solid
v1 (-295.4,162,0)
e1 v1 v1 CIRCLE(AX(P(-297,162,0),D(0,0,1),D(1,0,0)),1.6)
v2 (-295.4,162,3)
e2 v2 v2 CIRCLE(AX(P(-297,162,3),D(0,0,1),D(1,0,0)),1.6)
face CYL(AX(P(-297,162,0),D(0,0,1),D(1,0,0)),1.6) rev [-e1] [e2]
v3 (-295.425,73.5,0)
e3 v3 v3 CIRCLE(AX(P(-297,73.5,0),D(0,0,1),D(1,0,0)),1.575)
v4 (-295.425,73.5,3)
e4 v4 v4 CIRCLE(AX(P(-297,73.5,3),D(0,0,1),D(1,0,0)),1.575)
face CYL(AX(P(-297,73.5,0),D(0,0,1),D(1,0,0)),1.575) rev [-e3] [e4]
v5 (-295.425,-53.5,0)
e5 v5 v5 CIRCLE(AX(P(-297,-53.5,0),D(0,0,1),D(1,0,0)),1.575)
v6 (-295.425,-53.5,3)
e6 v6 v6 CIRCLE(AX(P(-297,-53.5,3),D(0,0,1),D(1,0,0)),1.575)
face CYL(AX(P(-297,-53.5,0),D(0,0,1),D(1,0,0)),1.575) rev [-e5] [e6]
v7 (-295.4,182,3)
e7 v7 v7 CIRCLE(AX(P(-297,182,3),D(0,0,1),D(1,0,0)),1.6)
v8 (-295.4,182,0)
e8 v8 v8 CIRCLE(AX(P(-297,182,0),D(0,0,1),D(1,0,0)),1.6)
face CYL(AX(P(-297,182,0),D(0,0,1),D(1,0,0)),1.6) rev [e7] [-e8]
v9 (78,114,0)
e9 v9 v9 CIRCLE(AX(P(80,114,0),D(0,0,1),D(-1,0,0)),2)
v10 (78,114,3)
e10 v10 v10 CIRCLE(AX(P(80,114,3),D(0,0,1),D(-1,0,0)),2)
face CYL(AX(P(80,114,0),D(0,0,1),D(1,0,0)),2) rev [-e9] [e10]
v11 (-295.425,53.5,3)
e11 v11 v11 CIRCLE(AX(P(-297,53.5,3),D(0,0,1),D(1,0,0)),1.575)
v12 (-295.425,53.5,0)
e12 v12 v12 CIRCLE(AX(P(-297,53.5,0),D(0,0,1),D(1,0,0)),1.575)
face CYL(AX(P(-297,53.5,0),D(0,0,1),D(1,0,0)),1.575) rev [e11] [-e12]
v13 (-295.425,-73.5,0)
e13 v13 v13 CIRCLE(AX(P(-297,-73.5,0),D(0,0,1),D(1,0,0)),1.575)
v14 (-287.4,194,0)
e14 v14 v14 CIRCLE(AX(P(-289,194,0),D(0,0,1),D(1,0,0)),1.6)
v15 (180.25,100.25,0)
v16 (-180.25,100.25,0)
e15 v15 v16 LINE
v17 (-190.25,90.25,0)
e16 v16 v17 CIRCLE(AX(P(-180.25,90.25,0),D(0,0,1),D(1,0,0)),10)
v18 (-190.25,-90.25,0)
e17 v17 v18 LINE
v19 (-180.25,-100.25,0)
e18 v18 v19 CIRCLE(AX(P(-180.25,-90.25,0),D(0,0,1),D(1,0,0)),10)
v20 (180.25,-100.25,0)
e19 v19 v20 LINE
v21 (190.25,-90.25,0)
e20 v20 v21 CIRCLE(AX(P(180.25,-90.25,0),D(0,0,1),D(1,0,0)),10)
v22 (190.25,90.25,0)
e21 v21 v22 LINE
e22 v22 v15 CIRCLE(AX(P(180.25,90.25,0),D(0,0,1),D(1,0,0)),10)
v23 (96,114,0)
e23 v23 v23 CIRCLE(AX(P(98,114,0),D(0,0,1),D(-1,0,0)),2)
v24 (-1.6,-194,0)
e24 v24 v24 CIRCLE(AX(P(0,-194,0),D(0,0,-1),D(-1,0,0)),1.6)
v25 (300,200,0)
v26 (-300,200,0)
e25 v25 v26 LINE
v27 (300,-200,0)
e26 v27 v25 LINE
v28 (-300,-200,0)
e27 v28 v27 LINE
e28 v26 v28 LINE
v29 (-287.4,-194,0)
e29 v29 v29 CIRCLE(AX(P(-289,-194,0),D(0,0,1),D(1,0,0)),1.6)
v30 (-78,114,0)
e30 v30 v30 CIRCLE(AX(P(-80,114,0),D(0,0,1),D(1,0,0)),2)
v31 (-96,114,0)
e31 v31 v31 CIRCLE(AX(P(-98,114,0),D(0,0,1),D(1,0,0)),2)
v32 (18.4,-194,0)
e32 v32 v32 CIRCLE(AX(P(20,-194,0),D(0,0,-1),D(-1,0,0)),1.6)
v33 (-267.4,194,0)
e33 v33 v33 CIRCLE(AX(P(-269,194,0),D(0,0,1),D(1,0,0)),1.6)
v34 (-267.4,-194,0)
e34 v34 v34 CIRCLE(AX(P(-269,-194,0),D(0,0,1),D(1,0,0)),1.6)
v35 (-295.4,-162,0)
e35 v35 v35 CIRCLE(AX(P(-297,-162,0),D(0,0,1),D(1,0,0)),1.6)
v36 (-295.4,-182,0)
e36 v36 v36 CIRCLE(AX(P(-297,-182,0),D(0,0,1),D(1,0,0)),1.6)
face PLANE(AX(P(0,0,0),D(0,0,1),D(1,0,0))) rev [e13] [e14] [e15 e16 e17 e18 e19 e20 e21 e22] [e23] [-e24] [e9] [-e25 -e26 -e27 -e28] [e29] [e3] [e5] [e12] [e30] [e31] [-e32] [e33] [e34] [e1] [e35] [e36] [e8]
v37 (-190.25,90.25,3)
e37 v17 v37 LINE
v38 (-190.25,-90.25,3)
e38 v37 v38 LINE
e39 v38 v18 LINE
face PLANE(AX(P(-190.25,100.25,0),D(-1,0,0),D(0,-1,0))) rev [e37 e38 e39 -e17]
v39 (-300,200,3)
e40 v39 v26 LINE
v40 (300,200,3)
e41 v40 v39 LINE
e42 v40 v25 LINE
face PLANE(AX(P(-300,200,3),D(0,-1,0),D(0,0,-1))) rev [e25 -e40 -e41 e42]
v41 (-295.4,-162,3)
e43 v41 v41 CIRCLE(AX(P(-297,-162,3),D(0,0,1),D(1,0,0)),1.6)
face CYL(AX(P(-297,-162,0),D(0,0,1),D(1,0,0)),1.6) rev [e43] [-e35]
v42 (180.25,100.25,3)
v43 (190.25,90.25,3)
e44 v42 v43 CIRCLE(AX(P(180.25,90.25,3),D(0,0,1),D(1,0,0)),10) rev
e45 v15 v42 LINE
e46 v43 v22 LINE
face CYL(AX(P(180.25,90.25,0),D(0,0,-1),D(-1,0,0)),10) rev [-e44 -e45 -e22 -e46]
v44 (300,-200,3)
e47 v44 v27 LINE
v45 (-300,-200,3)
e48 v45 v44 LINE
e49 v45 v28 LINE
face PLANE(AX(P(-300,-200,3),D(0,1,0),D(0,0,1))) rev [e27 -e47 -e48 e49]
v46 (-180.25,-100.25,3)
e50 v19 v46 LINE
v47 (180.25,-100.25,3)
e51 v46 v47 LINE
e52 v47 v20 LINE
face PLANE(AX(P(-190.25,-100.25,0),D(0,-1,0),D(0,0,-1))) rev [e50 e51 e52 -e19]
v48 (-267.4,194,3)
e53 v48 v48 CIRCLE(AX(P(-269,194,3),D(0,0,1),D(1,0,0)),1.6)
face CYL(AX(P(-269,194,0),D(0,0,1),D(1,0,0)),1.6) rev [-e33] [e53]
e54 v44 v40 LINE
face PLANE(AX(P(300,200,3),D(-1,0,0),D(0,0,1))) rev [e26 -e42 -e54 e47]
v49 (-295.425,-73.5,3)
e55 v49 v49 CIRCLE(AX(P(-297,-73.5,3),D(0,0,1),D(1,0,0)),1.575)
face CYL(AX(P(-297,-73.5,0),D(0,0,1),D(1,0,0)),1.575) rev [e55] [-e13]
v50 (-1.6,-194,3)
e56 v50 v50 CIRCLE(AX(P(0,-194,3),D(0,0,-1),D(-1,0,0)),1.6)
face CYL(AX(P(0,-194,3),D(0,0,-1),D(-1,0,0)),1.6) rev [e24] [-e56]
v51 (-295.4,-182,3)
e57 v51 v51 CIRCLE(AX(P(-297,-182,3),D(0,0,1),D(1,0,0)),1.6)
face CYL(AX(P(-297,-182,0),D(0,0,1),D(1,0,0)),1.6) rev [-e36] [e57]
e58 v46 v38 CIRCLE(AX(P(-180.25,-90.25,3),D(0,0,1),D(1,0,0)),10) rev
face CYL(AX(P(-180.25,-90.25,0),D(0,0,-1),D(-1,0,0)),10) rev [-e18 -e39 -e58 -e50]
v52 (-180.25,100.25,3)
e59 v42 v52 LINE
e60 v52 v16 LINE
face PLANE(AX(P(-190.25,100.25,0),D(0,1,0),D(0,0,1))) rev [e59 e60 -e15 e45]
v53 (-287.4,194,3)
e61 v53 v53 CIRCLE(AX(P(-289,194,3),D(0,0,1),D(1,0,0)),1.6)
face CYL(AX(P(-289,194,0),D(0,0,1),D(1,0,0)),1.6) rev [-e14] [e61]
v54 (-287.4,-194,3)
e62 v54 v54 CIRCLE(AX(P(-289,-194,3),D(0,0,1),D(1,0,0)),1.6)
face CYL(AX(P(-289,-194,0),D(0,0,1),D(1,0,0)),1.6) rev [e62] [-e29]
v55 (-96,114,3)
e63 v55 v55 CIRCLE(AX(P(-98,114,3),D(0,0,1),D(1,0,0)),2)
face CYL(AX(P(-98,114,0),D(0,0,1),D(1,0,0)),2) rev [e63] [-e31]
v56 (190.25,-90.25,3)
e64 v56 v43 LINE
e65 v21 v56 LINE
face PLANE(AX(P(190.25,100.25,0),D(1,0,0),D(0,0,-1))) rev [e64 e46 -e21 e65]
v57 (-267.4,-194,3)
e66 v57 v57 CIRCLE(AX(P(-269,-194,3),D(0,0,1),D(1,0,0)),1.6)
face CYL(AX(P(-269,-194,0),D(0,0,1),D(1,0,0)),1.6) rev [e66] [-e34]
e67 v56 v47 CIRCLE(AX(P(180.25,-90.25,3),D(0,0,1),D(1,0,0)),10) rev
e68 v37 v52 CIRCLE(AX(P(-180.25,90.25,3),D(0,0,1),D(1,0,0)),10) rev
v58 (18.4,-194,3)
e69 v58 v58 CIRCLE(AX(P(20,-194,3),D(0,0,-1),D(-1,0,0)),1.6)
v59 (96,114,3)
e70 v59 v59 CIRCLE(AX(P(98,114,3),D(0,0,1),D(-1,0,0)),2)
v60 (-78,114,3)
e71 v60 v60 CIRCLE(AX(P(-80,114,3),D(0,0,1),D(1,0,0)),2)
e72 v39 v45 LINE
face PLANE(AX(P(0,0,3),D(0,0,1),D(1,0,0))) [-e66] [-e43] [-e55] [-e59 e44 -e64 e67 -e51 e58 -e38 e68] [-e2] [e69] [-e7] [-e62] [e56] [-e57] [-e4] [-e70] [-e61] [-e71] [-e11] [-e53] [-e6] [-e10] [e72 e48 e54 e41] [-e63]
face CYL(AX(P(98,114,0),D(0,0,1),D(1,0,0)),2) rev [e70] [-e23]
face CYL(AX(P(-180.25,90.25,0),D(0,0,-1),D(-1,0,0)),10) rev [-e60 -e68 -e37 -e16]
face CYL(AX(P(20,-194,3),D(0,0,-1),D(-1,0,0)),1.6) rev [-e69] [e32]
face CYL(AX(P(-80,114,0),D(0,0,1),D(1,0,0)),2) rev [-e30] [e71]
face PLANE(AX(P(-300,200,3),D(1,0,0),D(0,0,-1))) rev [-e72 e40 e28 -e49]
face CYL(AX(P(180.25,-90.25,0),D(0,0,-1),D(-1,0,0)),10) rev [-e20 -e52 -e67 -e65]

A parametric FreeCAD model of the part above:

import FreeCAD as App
import Part
import Sketcher
from FreeCAD import Vector
Q = App.Units.Quantity


def edges_at(feature, points):
    """Names of the edges that pass closest to the given points."""
    edges = feature.Shape.Edges
    near = lambda p: min(range(len(edges)), key=lambda i: edges[i].distToShape(Part.Vertex(*p))[0])
    return sorted({f"Edge{near(p) + 1}" for p in points})

doc = App.newDocument("Part")
body = doc.addObject("PartDesign::Body", "Body")

sketch1 = body.newObject("Sketcher::SketchObject", "Sketch")
sketch1.AttachmentSupport = (doc.getObject("XY_Plane"), [""])
sketch1.MapMode = "FlatFace"
sketch1.addGeometry([
    Part.LineSegment(Vector(-300, 200, 0), Vector(-300, -200, 0)),
    Part.LineSegment(Vector(-300, -200, 0), Vector(300, -200, 0)),
    Part.LineSegment(Vector(300, -200, 0), Vector(300, 200, 0)),
    Part.LineSegment(Vector(300, 200, 0), Vector(-300, 200, 0)),
], False)
sketch1.addConstraint([
    Sketcher.Constraint("Coincident", 0, 2, 1, 1),
    Sketcher.Constraint("Coincident", 1, 2, 2, 1),
    Sketcher.Constraint("Coincident", 2, 2, 3, 1),
    Sketcher.Constraint("Coincident", 3, 2, 0, 1),
    Sketcher.Constraint("Vertical", 0),
    Sketcher.Constraint("Horizontal", 1),
    Sketcher.Constraint("Vertical", 2),
    Sketcher.Constraint("Horizontal", 3),
    Sketcher.Constraint("Symmetric", 0, 2, 2, 2, -1, 1),
    Sketcher.Constraint("DistanceX", 1, 1, 1, 2, Q("600 mm")),
    Sketcher.Constraint("DistanceY", 0, 2, 0, 1, Q("400 mm")),
])
pad1 = body.newObject("PartDesign::Pad", "Pad")
pad1.Profile = sketch1
pad1.Length = 3

sketch2 = body.newObject("Sketcher::SketchObject", "Sketch001")
sketch2.AttachmentSupport = (doc.getObject("XY_Plane"), [""])
sketch2.MapMode = "FlatFace"
sketch2.AttachmentOffset = App.Placement(Vector(0, 0, 3), App.Rotation())
sketch2.addGeometry([
    Part.Circle(Vector(-297, 162, 0), Vector(0, 0, 1), 1.6),
    Part.Circle(Vector(-297, 182, 0), Vector(0, 0, 1), 1.6),
    Part.Circle(Vector(-289, 194, 0), Vector(0, 0, 1), 1.6),
    Part.Circle(Vector(-269, 194, 0), Vector(0, 0, 1), 1.6),
], False)
sketch2.addConstraint([
    Sketcher.Constraint("Equal", 0, 1),
    Sketcher.Constraint("Equal", 1, 2),
    Sketcher.Constraint("Equal", 2, 3),
    Sketcher.Constraint("Horizontal", 2, 3, 3, 3),
    Sketcher.Constraint("Vertical", 0, 3, 1, 3),
    Sketcher.Constraint("Diameter", 0, Q("3.2 mm")),
    Sketcher.Constraint("DistanceX", 0, 3, -1, 1, Q("297 mm")),
    Sketcher.Constraint("DistanceY", -1, 1, 0, 3, Q("162 mm")),
    Sketcher.Constraint("DistanceY", -1, 1, 1, 3, Q("182 mm")),
    Sketcher.Constraint("DistanceX", 2, 3, -1, 1, Q("289 mm")),
    Sketcher.Constraint("DistanceY", -1, 1, 2, 3, Q("194 mm")),
    Sketcher.Constraint("DistanceX", 3, 3, -1, 1, Q("269 mm")),
])
pocket1 = body.newObject("PartDesign::Pocket", "Pocket")
pocket1.Profile = sketch2
pocket1.Type = "ThroughAll"

sketch3 = body.newObject("Sketcher::SketchObject", "Sketch002")
sketch3.AttachmentSupport = (doc.getObject("XY_Plane"), [""])
sketch3.MapMode = "FlatFace"
sketch3.AttachmentOffset = App.Placement(Vector(0, 0, 3), App.Rotation())
sketch3.addGeometry([
    Part.Circle(Vector(-297, -162, 0), Vector(0, 0, 1), 1.6),
    Part.Circle(Vector(-297, -182, 0), Vector(0, 0, 1), 1.6),
    Part.Circle(Vector(-289, -194, 0), Vector(0, 0, 1), 1.6),
    Part.Circle(Vector(-269, -194, 0), Vector(0, 0, 1), 1.6),
], False)
sketch3.addConstraint([
    Sketcher.Constraint("Equal", 0, 1),
    Sketcher.Constraint("Equal", 1, 2),
    Sketcher.Constraint("Equal", 2, 3),
    Sketcher.Constraint("Horizontal", 2, 3, 3, 3),
    Sketcher.Constraint("Vertical", 0, 3, 1, 3),
    Sketcher.Constraint("Diameter", 0, Q("3.2 mm")),
    Sketcher.Constraint("DistanceX", 0, 3, -1, 1, Q("297 mm")),
    Sketcher.Constraint("DistanceY", 0, 3, -1, 1, Q("162 mm")),
    Sketcher.Constraint("DistanceY", 1, 3, -1, 1, Q("182 mm")),
    Sketcher.Constraint("DistanceX", 2, 3, -1, 1, Q("289 mm")),
    Sketcher.Constraint("DistanceY", 2, 3, -1, 1, Q("194 mm")),
    Sketcher.Constraint("DistanceX", 3, 3, -1, 1, Q("269 mm")),
])
pocket2 = body.newObject("PartDesign::Pocket", "Pocket001")
pocket2.Profile = sketch3
pocket2.Type = "ThroughAll"

sketch4 = body.newObject("Sketcher::SketchObject", "Sketch003")
sketch4.AttachmentSupport = (doc.getObject("XY_Plane"), [""])
sketch4.MapMode = "FlatFace"
sketch4.addGeometry([
    Part.Circle(Vector(0, -194, 0), Vector(0, 0, 1), 1.6),
    Part.Circle(Vector(20, -194, 0), Vector(0, 0, 1), 1.6),
], False)
sketch4.addConstraint([
    Sketcher.Constraint("Equal", 0, 1),
    Sketcher.Constraint("PointOnObject", 0, 3, -2),
    Sketcher.Constraint("Horizontal", 0, 3, 1, 3),
    Sketcher.Constraint("Diameter", 0, Q("3.2 mm")),
    Sketcher.Constraint("DistanceY", 0, 3, -1, 1, Q("194 mm")),
    Sketcher.Constraint("DistanceX", -1, 1, 1, 3, Q("20 mm")),
])
pocket3 = body.newObject("PartDesign::Pocket", "Pocket002")
pocket3.Profile = sketch4
pocket3.Type = "ThroughAll"
pocket3.Reversed = True

sketch5 = body.newObject("Sketcher::SketchObject", "Sketch004")
sketch5.AttachmentSupport = (doc.getObject("XY_Plane"), [""])
sketch5.MapMode = "FlatFace"
sketch5.AttachmentOffset = App.Placement(Vector(0, 0, 3), App.Rotation())
sketch5.addGeometry([
    Part.LineSegment(Vector(-190, 100, 0), Vector(-190, -100, 0)),
    Part.LineSegment(Vector(-190, -100, 0), Vector(190, -100, 0)),
    Part.LineSegment(Vector(190, -100, 0), Vector(190, 100, 0)),
    Part.LineSegment(Vector(190, 100, 0), Vector(-190, 100, 0)),
], False)
sketch5.addConstraint([
    Sketcher.Constraint("Coincident", 0, 2, 1, 1),
    Sketcher.Constraint("Coincident", 1, 2, 2, 1),
    Sketcher.Constraint("Coincident", 2, 2, 3, 1),
    Sketcher.Constraint("Coincident", 3, 2, 0, 1),
    Sketcher.Constraint("Vertical", 0),
    Sketcher.Constraint("Horizontal", 1),
    Sketcher.Constraint("Vertical", 2),
    Sketcher.Constraint("Horizontal", 3),
    Sketcher.Constraint("Symmetric", 0, 2, 2, 2, -1, 1),
    Sketcher.Constraint("DistanceX", 1, 1, 1, 2, Q("380.5 mm")),
    Sketcher.Constraint("DistanceY", 0, 2, 0, 1, Q("200.5 mm")),
])
pocket4 = body.newObject("PartDesign::Pocket", "Pocket003")
pocket4.Profile = sketch5
pocket4.Type = "ThroughAll"

sketch6 = body.newObject("Sketcher::SketchObject", "Sketch005")
sketch6.AttachmentSupport = (doc.getObject("XY_Plane"), [""])
sketch6.MapMode = "FlatFace"
sketch6.AttachmentOffset = App.Placement(Vector(0, 0, 3), App.Rotation())
sketch6.addGeometry([
    Part.Circle(Vector(-297, 73.5, 0), Vector(0, 0, 1), 1.6),
    Part.Circle(Vector(-297, 53.5, 0), Vector(0, 0, 1), 1.6),
    Part.Circle(Vector(-297, -53.5, 0), Vector(0, 0, 1), 1.6),
    Part.Circle(Vector(-297, -73.5, 0), Vector(0, 0, 1), 1.6),
], False)
sketch6.addConstraint([
    Sketcher.Constraint("Equal", 0, 1),
    Sketcher.Constraint("Equal", 1, 2),
    Sketcher.Constraint("Equal", 2, 3),
    Sketcher.Constraint("Symmetric", 1, 3, 2, 3, -1),
    Sketcher.Constraint("Symmetric", 0, 3, 3, 3, -1),
    Sketcher.Constraint("Vertical", 0, 3, 1, 3),
    Sketcher.Constraint("Diameter", 0, Q("3.15 mm")),
    Sketcher.Constraint("DistanceX", 0, 3, -1, 1, Q("297 mm")),
    Sketcher.Constraint("DistanceY", 1, 3, 0, 3, Q("20 mm")),
    Sketcher.Constraint("DistanceY", 2, 3, 1, 3, Q("107 mm")),
])
pocket5 = body.newObject("PartDesign::Pocket", "Pocket004")
pocket5.Profile = sketch6
pocket5.Type = "ThroughAll"

sketch7 = body.newObject("Sketcher::SketchObject", "Sketch006")
sketch7.AttachmentSupport = (doc.getObject("XY_Plane"), [""])
sketch7.MapMode = "FlatFace"
sketch7.AttachmentOffset = App.Placement(Vector(0, 0, 3), App.Rotation())
sketch7.addGeometry([
    Part.Circle(Vector(-98, 114, 0), Vector(0, 0, 1), 2),
    Part.Circle(Vector(-80, 114, 0), Vector(0, 0, 1), 2),
    Part.Circle(Vector(80, 114, 0), Vector(0, 0, 1), 2),
    Part.Circle(Vector(98, 114, 0), Vector(0, 0, 1), 2),
], False)
sketch7.addConstraint([
    Sketcher.Constraint("Equal", 0, 1),
    Sketcher.Constraint("Equal", 1, 2),
    Sketcher.Constraint("Equal", 2, 3),
    Sketcher.Constraint("Symmetric", 1, 3, 2, 3, -2),
    Sketcher.Constraint("Symmetric", 0, 3, 3, 3, -2),
    Sketcher.Constraint("Horizontal", 0, 3, 1, 3),
    Sketcher.Constraint("Diameter", 0, Q("4 mm")),
    Sketcher.Constraint("DistanceX", 0, 3, -1, 1, Q("98 mm")),
    Sketcher.Constraint("DistanceY", -1, 1, 0, 3, Q("114 mm")),
    Sketcher.Constraint("DistanceX", 1, 3, -1, 1, Q("80 mm")),
])
pocket6 = body.newObject("PartDesign::Pocket", "Pocket005")
pocket6.Profile = sketch7
pocket6.Type = "ThroughAll"
doc.recompute()

fillet = body.newObject("PartDesign::Fillet", "Fillet")
fillet.Base = (pocket6, edges_at(pocket6, [
    (190.25, 100.25, 1.5),
    (190.25, -100.25, 1.5),
    (-190.25, -100.25, 1.5),
    (-190.25, 100.25, 1.5),
]))
fillet.Radius = 10

doc.recompute()
